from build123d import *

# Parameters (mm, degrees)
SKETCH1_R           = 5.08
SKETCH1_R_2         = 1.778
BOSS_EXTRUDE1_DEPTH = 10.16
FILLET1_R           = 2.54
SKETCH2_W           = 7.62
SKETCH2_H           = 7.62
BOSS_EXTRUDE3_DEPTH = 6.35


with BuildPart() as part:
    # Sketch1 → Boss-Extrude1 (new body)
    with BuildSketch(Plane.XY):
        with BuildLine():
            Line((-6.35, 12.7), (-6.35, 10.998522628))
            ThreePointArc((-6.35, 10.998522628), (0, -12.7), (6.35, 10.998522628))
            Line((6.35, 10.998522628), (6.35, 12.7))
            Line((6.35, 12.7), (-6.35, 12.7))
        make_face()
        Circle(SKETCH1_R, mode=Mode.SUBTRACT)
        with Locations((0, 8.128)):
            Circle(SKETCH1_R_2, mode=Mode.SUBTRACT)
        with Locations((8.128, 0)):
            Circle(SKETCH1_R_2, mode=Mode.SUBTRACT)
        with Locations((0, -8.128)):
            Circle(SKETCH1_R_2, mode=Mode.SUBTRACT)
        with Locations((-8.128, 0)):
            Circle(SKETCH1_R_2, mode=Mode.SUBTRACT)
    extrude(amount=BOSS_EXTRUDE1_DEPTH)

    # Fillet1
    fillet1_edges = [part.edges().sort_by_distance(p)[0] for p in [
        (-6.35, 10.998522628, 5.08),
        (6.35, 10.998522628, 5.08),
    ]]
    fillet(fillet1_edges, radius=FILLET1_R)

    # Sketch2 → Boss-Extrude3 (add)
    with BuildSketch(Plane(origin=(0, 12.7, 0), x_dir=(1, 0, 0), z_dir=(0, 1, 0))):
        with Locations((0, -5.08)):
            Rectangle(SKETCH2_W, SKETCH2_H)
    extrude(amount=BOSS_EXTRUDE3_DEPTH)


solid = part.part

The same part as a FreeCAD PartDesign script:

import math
import FreeCAD as App
import Part
import Sketcher
Q = App.Units.Quantity


def edges_at(feature, points):
    """Names of the edges that pass closest to the given points."""
    edges = feature.Shape.Edges
    near = lambda p: min(range(len(edges)), key=lambda i: edges[i].distToShape(Part.Vertex(*p))[0])
    return sorted({f"Edge{near(p) + 1}" for p in points})

doc = App.newDocument("Part")
params = doc.addObject("Spreadsheet::Sheet", "Params")
for row, (alias, value) in enumerate([
    ("sketch1_diameter", "0.4 in"),
    ("sketch1_radius", "0.5 in"),
    ("sketch1_diameter2", "0.14 in"),
    ("sketch1_width", "0.5 in"),
    ("pad1_length", "0.4 in"),
    ("fillet_radius", "0.1 in"),
    ("sketch2_width", "0.3 in"),
    ("pad2_length", "0.25 in"),
], start=1):
    params.set(f"A{row}", alias)
    params.set(f"B{row}", "=" + value)
    params.setAlias(f"B{row}", alias)

body = doc.addObject("PartDesign::Body", "Body")

sketch1 = body.newObject("Sketcher::SketchObject", "Sketch")
sketch1.AttachmentSupport = (doc.getObject("XY_Plane"), [""])
sketch1.MapMode = "FlatFace"
sketch1.addGeometry([
    Part.LineSegment(App.Vector(-6.3, 12.7, 0), App.Vector(-6.3, 11, 0)),
    Part.ArcOfCircle(Part.Circle(App.Vector(0, 0, 0), App.Vector(0, 0, 1), 12.7), math.radians(120), math.radians(420)),
    Part.LineSegment(App.Vector(6.3, 11, 0), App.Vector(6.3, 12.7, 0)),
    Part.LineSegment(App.Vector(6.3, 12.7, 0), App.Vector(-6.3, 12.7, 0)),
    Part.Circle(App.Vector(0, -8.1, 0), App.Vector(0, 0, 1), 1.8),
    Part.Circle(App.Vector(-8.1, 0, 0), App.Vector(0, 0, 1), 1.8),
    Part.Circle(App.Vector(0, 0, 0), App.Vector(0, 0, 1), 5.1),
    Part.Circle(App.Vector(8.1, 0, 0), App.Vector(0, 0, 1), 1.8),
    Part.Circle(App.Vector(0, 8.1, 0), App.Vector(0, 0, 1), 1.8),
], False)
sketch1.addConstraint([
    Sketcher.Constraint("Coincident", 0, 2, 1, 1),
    Sketcher.Constraint("Coincident", 1, 2, 2, 1),
    Sketcher.Constraint("Coincident", 2, 2, 3, 1),
    Sketcher.Constraint("Coincident", 3, 2, 0, 1),
    Sketcher.Constraint("Vertical", 0),
    Sketcher.Constraint("Vertical", 2),
    Sketcher.Constraint("Horizontal", 3),
    Sketcher.Constraint("Coincident", 1, 3, -1, 1),
    Sketcher.Constraint("Coincident", 6, 3, -1, 1),
    Sketcher.Constraint("Equal", 4, 5),
    Sketcher.Constraint("Equal", 5, 7),
    Sketcher.Constraint("Equal", 7, 8),
    Sketcher.Constraint("Symmetric", 5, 3, 7, 3, -1, 1),
    Sketcher.Constraint("Symmetric", 4, 3, 8, 3, -1, 1),
    Sketcher.Constraint("PointOnObject", 4, 3, -2),
    Sketcher.Constraint("PointOnObject", 5, 3, -1),
    Sketcher.Constraint("Horizontal", 0, 2, 1, 2),
    Sketcher.Constraint("Diameter", 6, Q("0.4 in")),
    Sketcher.Constraint("Radius", 1, Q("0.5 in")),
    Sketcher.Constraint("Diameter", 4, Q("0.14 in")),
    Sketcher.Constraint("DistanceX", 3, 2, 3, 1, Q("0.5 in")),
    Sketcher.Constraint("DistanceY", -1, 1, 2, 2, Q("0.5 in")),
    Sketcher.Constraint("DistanceY", 4, 3, -1, 1, Q("0.32 in")),
    Sketcher.Constraint("DistanceX", 5, 3, -1, 1, Q("0.32 in")),
])
sketch1.setExpression("Constraints[17]", "Params.sketch1_diameter")
sketch1.setExpression("Constraints[18]", "Params.sketch1_radius")
sketch1.setExpression("Constraints[19]", "Params.sketch1_diameter2")
sketch1.setExpression("Constraints[20]", "Params.sketch1_width")
pad1 = body.newObject("PartDesign::Pad", "Pad")
pad1.Profile = sketch1
pad1.setExpression("Length", "Params.pad1_length")
doc.recompute()

fillet = body.newObject("PartDesign::Fillet", "Fillet")
fillet.Base = (pad1, edges_at(pad1, [(-6.35, 10.999, 5.08), (6.35, 10.999, 5.08)]))
fillet.setExpression("Radius", "Params.fillet_radius")

sketch2 = body.newObject("Sketcher::SketchObject", "Sketch001")
sketch2.AttachmentSupport = (doc.getObject("XZ_Plane"), [""])
sketch2.MapMode = "FlatFace"
sketch2.AttachmentOffset = App.Placement(App.Vector(0, 0, -0.5 * 25.4), App.Rotation())
sketch2.addGeometry([
    Part.LineSegment(App.Vector(-4, 1, 0), App.Vector(-4, 9, 0)),
    Part.LineSegment(App.Vector(-4, 9, 0), App.Vector(4, 9, 0)),
    Part.LineSegment(App.Vector(4, 9, 0), App.Vector(4, 1, 0)),
    Part.LineSegment(App.Vector(4, 1, 0), App.Vector(-4, 1, 0)),
], False)
sketch2.addConstraint([
    Sketcher.Constraint("Coincident", 0, 2, 1, 1),
    Sketcher.Constraint("Coincident", 1, 2, 2, 1),
    Sketcher.Constraint("Coincident", 2, 2, 3, 1),
    Sketcher.Constraint("Coincident", 3, 2, 0, 1),
    Sketcher.Constraint("Vertical", 0),
    Sketcher.Constraint("Horizontal", 1),
    Sketcher.Constraint("Vertical", 2),
    Sketcher.Constraint("Horizontal", 3),
    Sketcher.Constraint("Equal", 3, 0),
    Sketcher.Constraint("DistanceX", 1, 1, 1, 2, Q("0.3 in")),
    Sketcher.Constraint("DistanceX", 0, 2, -1, 1, Q("0.15 in")),
    Sketcher.Constraint("DistanceY", -1, 1, 0, 2, Q("0.35 in")),
])
sketch2.setExpression("Constraints[9]", "Params.sketch2_width")
pad2 = body.newObject("PartDesign::Pad", "Pad001")
pad2.Profile = sketch2
pad2.setExpression("Length", "Params.pad2_length")
pad2.Reversed = True

doc.recompute()
